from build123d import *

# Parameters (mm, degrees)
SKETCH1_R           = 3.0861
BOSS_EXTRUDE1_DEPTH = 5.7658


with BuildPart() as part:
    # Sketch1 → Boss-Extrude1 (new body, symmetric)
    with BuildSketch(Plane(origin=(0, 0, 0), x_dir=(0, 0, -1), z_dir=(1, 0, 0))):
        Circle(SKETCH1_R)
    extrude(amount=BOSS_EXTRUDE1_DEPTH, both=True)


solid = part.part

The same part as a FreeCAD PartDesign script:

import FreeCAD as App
import Part
import Sketcher
Q = App.Units.Quantity

doc = App.newDocument("Part")
body = doc.addObject("PartDesign::Body", "Body")

# Sketch on YZ plane
sketch1 = body.newObject("Sketcher::SketchObject", "Sketch")
sketch1.AttachmentSupport = (doc.getObject("YZ_Plane"), [""])
sketch1.MapMode = "FlatFace"
sketch1.addGeometry(Part.Circle(App.Vector(0, 0, 0), App.Vector(0, 0, 1), 3.0861), False)
sketch1.addConstraint(Sketcher.Constraint("Coincident", 0, 3, -1, 1))
sketch1.addConstraint(Sketcher.Constraint("Diameter", 0, Q("0.243 in")))
pad1 = body.newObject("PartDesign::Pad", "Pad")
pad1.Profile = sketch1
pad1.Length = Q("0.454 in")
pad1.Midplane = True

doc.recompute()
